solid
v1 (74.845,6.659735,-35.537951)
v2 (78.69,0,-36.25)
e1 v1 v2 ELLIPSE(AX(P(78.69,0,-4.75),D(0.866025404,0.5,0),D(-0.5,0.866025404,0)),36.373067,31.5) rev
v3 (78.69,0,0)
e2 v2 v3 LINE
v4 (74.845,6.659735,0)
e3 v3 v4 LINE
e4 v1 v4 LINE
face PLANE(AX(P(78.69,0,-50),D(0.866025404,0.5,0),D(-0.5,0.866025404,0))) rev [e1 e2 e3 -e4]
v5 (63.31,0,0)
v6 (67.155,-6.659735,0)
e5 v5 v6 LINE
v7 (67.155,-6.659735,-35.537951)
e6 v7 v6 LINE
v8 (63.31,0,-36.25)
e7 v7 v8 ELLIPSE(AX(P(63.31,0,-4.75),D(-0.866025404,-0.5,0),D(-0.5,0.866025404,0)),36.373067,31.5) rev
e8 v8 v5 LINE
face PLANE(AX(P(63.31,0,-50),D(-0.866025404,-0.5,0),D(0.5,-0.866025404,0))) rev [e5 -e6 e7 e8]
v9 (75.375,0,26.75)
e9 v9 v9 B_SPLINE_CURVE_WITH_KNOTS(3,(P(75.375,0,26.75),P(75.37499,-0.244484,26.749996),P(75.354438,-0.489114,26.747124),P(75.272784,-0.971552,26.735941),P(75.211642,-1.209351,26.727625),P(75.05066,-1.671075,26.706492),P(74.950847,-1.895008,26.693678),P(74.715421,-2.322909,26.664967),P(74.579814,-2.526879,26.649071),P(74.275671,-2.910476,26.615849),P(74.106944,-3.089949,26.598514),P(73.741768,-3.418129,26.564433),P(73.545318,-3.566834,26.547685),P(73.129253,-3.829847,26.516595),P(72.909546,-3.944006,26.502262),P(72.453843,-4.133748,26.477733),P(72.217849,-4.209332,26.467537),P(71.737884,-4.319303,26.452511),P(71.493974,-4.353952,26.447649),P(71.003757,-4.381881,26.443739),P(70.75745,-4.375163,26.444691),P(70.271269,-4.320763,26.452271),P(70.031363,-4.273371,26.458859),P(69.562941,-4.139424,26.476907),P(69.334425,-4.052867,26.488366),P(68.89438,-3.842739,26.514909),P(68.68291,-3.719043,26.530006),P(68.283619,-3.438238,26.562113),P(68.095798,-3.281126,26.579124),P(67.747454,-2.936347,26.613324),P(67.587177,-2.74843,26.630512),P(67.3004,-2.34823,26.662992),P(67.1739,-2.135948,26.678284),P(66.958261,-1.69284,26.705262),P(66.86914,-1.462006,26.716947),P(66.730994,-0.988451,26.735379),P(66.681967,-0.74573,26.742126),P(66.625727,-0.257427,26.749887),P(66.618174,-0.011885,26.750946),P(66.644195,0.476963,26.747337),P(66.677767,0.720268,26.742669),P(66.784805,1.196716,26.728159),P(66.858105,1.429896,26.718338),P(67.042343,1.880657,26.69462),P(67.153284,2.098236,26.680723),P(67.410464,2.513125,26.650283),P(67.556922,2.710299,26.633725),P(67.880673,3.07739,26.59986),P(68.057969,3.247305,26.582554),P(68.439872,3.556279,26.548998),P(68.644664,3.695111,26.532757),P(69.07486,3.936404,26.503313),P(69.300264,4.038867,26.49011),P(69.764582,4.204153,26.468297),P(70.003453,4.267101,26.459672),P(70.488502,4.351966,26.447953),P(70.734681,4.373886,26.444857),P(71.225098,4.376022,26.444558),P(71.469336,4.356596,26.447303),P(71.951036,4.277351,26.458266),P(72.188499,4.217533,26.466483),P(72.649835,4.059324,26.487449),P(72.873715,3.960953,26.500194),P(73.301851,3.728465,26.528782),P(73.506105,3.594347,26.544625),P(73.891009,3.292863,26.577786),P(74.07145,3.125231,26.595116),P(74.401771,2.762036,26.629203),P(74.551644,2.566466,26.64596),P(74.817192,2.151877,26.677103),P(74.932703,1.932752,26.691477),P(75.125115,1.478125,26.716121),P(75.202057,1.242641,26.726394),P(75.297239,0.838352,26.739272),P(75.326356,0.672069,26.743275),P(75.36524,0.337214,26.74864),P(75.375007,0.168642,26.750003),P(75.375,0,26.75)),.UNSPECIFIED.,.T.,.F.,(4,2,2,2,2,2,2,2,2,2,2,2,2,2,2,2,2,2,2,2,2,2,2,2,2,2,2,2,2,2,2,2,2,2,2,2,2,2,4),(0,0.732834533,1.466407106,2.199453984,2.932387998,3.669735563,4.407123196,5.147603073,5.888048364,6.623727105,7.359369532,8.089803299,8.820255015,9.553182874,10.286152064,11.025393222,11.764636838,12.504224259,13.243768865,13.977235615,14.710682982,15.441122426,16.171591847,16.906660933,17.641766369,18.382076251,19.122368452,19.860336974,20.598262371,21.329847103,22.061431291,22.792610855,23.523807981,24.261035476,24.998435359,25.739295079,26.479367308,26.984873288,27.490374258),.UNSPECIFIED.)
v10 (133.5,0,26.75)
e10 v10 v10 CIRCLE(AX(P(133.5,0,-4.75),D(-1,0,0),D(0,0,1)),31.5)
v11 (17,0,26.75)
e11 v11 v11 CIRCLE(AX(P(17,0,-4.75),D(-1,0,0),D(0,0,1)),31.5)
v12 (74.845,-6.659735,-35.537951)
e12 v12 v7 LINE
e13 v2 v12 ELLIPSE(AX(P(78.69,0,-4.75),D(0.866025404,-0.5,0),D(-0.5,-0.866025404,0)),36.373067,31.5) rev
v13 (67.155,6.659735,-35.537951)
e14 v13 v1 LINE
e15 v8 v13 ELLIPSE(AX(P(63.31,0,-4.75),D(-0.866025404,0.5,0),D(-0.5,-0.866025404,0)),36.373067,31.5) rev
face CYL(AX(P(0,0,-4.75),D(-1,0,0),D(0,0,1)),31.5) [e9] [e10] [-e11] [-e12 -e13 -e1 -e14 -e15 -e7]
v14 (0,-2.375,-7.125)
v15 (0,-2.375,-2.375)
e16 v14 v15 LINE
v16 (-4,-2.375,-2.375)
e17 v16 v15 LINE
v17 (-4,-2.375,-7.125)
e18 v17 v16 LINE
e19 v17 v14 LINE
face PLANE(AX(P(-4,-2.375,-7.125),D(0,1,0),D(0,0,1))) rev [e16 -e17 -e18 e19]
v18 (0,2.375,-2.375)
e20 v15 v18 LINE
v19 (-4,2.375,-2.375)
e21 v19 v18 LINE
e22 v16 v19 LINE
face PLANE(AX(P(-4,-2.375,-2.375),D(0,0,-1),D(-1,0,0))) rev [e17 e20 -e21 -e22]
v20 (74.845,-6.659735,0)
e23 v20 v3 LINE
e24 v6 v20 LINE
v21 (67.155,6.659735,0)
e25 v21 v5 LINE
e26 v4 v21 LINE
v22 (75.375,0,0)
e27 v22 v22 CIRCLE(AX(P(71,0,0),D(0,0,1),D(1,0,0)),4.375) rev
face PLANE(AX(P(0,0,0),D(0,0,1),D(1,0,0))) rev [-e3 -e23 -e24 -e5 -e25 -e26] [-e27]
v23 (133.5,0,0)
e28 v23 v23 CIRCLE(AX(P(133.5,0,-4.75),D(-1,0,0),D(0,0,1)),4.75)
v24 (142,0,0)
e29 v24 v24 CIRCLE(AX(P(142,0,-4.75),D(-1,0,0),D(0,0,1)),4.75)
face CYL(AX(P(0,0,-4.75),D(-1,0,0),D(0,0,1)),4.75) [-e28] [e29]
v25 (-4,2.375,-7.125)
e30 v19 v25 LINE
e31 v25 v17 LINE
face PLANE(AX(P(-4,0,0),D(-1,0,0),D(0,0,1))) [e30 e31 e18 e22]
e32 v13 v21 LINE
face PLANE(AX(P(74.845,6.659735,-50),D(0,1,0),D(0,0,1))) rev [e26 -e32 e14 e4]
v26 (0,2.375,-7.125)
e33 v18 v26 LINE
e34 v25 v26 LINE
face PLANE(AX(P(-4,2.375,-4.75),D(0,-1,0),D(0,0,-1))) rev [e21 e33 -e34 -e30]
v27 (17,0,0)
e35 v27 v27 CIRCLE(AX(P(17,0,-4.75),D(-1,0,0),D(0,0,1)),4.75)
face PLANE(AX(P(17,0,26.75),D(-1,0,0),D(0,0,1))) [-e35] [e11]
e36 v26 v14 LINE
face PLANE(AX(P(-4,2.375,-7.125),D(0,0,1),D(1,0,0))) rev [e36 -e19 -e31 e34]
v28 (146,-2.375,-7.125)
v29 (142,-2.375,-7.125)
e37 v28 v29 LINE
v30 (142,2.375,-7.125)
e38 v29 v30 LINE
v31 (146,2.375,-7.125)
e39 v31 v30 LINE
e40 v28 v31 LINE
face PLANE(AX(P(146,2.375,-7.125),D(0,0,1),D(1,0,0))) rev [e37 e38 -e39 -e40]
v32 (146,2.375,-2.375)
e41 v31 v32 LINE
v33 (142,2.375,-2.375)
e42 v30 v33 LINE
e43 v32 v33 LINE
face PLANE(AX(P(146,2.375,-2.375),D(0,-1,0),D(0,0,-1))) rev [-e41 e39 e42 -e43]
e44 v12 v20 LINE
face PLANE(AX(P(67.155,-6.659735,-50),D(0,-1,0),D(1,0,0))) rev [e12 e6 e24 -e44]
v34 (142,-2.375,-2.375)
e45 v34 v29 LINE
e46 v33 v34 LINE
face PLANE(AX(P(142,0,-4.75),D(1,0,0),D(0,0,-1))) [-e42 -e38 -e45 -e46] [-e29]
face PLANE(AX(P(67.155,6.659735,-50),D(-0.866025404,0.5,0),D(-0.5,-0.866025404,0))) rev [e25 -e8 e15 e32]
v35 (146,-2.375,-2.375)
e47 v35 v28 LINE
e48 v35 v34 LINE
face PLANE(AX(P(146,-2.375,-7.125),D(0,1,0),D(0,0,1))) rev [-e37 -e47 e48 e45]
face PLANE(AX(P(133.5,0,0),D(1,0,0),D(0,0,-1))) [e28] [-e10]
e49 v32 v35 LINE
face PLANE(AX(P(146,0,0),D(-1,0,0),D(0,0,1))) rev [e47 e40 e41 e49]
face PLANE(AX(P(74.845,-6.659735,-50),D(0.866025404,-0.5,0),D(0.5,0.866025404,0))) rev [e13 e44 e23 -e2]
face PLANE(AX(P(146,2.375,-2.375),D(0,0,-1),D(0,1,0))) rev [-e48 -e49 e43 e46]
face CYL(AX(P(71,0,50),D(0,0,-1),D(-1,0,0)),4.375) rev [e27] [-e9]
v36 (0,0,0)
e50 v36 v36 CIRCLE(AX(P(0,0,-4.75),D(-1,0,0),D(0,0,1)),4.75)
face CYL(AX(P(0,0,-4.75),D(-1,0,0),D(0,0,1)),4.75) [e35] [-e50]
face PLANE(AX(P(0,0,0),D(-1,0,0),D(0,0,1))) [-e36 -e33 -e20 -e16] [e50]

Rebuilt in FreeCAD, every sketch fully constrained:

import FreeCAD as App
import Part
import Sketcher
Q = App.Units.Quantity


def add_polygon(sketch, points):
    """Adds a closed chain of lines whose ends are joined by coincident constraints."""
    first, n = sketch.GeometryCount, len(points)
    for a, b in zip(points, points[1:] + points[:1]):
        sketch.addGeometry(Part.LineSegment(App.Vector(*a, 0), App.Vector(*b, 0)), False)
    for i in range(n):
        sketch.addConstraint(Sketcher.Constraint("Coincident", first + i, 2, first + (i + 1) % n, 1))

doc = App.newDocument("Part")
body = doc.addObject("PartDesign::Body", "Body")

sketch1 = body.newObject("Sketcher::SketchObject", "Sketch")
sketch1.AttachmentSupport = (doc.getObject("XZ_Plane"), [""])
sketch1.MapMode = "FlatFace"
add_polygon(sketch1, [(0, -4.8), (0, 0), (17, 0), (17, 26.8), (133.5, 26.8), (133.5, 0), (142, 0), (142, -4.8)])
sketch1.addGeometry(Part.LineSegment(App.Vector(0, -4.8, 0), App.Vector(142, -4.8, 0)), True)
sketch1.addConstraint([
    Sketcher.Constraint("Vertical", 0),
    Sketcher.Constraint("Horizontal", 1),
    Sketcher.Constraint("Vertical", 2),
    Sketcher.Constraint("Horizontal", 3),
    Sketcher.Constraint("Vertical", 4),
    Sketcher.Constraint("Horizontal", 5),
    Sketcher.Constraint("Vertical", 6),
    Sketcher.Constraint("Horizontal", 7),
    Sketcher.Constraint("Horizontal", 8),
    Sketcher.Constraint("Coincident", 0, 2, -1, 1),
    Sketcher.Constraint("Coincident", 8, 1, 7, 2),
    Sketcher.Constraint("PointOnObject", 4, 2, -1),
    Sketcher.Constraint("Vertical", 5, 2, 8, 2),
    Sketcher.Constraint("DistanceX", 1, 1, 1, 2, 17.0),
    Sketcher.Constraint("DistanceX", 7, 2, 7, 1, 142.0),
    Sketcher.Constraint("DistanceX", 3, 1, 3, 2, 116.5),
    Sketcher.Constraint("DistanceY", 0, 1, 0, 2, 4.75),
    Sketcher.Constraint("DistanceY", 2, 1, 2, 2, 26.75),
])
revolution = body.newObject("PartDesign::Revolution", "Revolution")
revolution.Profile = sketch1
revolution.ReferenceAxis = (sketch1, ["Axis0"])
revolution.Angle = 360

sketch2 = body.newObject("Sketcher::SketchObject", "Sketch001")
sketch2.AttachmentSupport = (doc.getObject("YZ_Plane"), [""])
sketch2.MapMode = "FlatFace"
sketch2.AttachmentOffset = App.Placement(App.Vector(0, 0, 142), App.Rotation())
add_polygon(sketch2, [(2.4, -2.4), (-2.4, -2.4), (-2.4, -7.1), (2.4, -7.1)])
sketch2.addConstraint([
    Sketcher.Constraint("Horizontal", 0),
    Sketcher.Constraint("Vertical", 1),
    Sketcher.Constraint("Horizontal", 2),
    Sketcher.Constraint("Vertical", 3),
    Sketcher.Constraint("Equal", 2, 1),
    Sketcher.Constraint("DistanceX", 0, 2, 0, 1, 4.75),
    Sketcher.Constraint("DistanceX", 0, 2, -1, 1, 2.375),
    Sketcher.Constraint("DistanceY", 0, 2, -1, 1, 2.375),
])
pad1 = body.newObject("PartDesign::Pad", "Pad")
pad1.Profile = sketch2
pad1.Length = 4

sketch3 = body.newObject("Sketcher::SketchObject", "Sketch002")
sketch3.AttachmentSupport = (doc.getObject("YZ_Plane"), [""])
sketch3.MapMode = "FlatFace"
add_polygon(sketch3, [(2.4, -7.1), (-2.4, -7.1), (-2.4, -2.4), (2.4, -2.4)])
sketch3.addConstraint([
    Sketcher.Constraint("Horizontal", 0),
    Sketcher.Constraint("Vertical", 1),
    Sketcher.Constraint("Horizontal", 2),
    Sketcher.Constraint("Vertical", 3),
    Sketcher.Constraint("Equal", 2, 1),
    Sketcher.Constraint("DistanceX", 0, 2, 0, 1, 4.75),
    Sketcher.Constraint("DistanceX", 0, 2, -1, 1, 2.375),
    Sketcher.Constraint("DistanceY", 0, 2, -1, 1, 7.125),
])
pad2 = body.newObject("PartDesign::Pad", "Pad001")
pad2.Profile = sketch3
pad2.Length = 4
pad2.Reversed = True

sketch4 = body.newObject("Sketcher::SketchObject", "Sketch003")
sketch4.AttachmentSupport = (doc.getObject("XY_Plane"), [""])
sketch4.MapMode = "FlatFace"
add_polygon(sketch4, [(63.3, 0), (67.2, -6.7), (74.8, -6.7), (78.7, 0), (74.8, 6.7), (67.2, 6.7)])
sketch4.addGeometry(Part.Circle(App.Vector(71, 0, 0), App.Vector(0, 0, 1), 4.4), False)
sketch4.addConstraint([
    Sketcher.Constraint("Horizontal", 1),
    Sketcher.Constraint("Horizontal", 4),
    Sketcher.Constraint("Symmetric", 1, 2, 3, 2, -1),
    Sketcher.Constraint("PointOnObject", 6, 3, -1),
    Sketcher.Constraint("PointOnObject", 2, 2, -1),
    Sketcher.Constraint("PointOnObject", 5, 2, -1),
    Sketcher.Constraint("Parallel", 0, 3),
    Sketcher.Constraint("Parallel", 2, 5),
    Sketcher.Constraint("Diameter", 6, 8.75),
    Sketcher.Constraint("Angle", 0, Q("-60 deg")),
    Sketcher.Constraint("DistanceX", -1, 1, 6, 3, 71.0),
    Sketcher.Constraint("DistanceX", 1, 1, 1, 2, 7.69),
    Sketcher.Constraint("Distance", 0, 7.69),
    Sketcher.Constraint("DistanceX", -1, 1, 2, 2, 78.69),
])
pocket1 = body.newObject("PartDesign::Pocket", "Pocket")
pocket1.Profile = sketch4
pocket1.Length = 50

sketch5 = body.newObject("Sketcher::SketchObject", "Sketch004")
sketch5.AttachmentSupport = (doc.getObject("XY_Plane"), [""])
sketch5.MapMode = "FlatFace"
sketch5.addGeometry(Part.Circle(App.Vector(71, 0, 0), App.Vector(0, 0, 1), 4.4), False)
sketch5.addConstraint([
    Sketcher.Constraint("PointOnObject", 0, 3, -1),
    Sketcher.Constraint("Diameter", 0, 8.75),
    Sketcher.Constraint("DistanceX", -1, 1, 0, 3, 71.0),
])
pocket2 = body.newObject("PartDesign::Pocket", "Pocket001")
pocket2.Profile = sketch5
pocket2.Type = "ThroughAll"
pocket2.Midplane = True

doc.recompute()
